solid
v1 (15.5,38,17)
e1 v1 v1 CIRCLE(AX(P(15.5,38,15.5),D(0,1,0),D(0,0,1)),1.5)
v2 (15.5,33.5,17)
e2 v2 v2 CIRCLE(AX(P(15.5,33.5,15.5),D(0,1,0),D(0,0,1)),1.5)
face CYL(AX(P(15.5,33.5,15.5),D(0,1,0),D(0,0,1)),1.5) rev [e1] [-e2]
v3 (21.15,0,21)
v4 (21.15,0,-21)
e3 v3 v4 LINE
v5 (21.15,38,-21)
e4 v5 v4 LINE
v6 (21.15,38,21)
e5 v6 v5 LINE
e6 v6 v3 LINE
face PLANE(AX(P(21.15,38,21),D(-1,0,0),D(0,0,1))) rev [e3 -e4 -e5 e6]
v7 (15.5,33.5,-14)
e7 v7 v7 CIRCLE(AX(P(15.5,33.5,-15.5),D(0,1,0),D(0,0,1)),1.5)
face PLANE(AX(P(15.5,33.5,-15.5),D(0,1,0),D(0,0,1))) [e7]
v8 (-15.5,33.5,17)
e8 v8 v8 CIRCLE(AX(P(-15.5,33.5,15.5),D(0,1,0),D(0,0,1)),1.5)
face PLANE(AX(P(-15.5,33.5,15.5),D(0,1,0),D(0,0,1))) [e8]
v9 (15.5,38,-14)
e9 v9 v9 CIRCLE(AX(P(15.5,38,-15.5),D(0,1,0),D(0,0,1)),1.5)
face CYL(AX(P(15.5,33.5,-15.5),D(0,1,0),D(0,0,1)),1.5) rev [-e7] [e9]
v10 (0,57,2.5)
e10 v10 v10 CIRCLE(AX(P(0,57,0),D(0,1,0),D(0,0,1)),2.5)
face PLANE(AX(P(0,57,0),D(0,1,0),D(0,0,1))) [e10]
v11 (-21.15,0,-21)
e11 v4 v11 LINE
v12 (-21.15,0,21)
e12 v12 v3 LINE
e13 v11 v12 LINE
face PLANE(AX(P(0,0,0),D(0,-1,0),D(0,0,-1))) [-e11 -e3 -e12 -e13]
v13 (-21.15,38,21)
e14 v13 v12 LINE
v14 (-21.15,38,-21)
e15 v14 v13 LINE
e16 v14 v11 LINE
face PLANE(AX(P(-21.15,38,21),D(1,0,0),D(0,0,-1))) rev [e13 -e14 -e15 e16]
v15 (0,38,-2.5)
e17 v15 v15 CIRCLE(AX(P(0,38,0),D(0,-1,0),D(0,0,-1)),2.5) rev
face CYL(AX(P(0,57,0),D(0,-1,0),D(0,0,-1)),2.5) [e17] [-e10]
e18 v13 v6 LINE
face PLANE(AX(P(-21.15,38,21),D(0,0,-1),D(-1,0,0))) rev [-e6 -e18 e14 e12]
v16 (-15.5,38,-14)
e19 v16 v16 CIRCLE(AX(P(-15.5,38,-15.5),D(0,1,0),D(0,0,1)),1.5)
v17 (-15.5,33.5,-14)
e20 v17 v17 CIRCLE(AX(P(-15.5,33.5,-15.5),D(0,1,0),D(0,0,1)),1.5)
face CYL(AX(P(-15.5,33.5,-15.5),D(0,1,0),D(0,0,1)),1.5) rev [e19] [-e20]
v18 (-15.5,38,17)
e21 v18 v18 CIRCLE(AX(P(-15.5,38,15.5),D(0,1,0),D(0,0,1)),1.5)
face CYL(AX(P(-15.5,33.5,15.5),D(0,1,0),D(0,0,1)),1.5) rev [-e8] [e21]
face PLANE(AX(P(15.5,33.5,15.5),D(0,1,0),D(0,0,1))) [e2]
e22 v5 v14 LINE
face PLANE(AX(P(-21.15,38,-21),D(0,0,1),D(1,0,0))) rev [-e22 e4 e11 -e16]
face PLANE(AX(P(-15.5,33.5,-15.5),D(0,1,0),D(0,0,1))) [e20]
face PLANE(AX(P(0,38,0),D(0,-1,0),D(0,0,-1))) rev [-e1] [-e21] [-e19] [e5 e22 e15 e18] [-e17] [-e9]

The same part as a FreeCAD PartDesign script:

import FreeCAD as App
import Part
import Sketcher

V = App.Vector
Q = App.Units.Quantity

doc = App.newDocument("Part")
body = doc.addObject("PartDesign::Body", "Body")

sketch1 = doc.addObject("Sketcher::SketchObject", "Sketch")
body.addObject(sketch1)
sketch1.AttachmentSupport = (doc.XZ_Plane, [""])
sketch1.MapMode = "FlatFace"
sketch1.addGeometry(Part.LineSegment(V(-21.15, -21, 0), V(-21.15, 21, 0)), False)
sketch1.addGeometry(Part.LineSegment(V(-21.15, 21, 0), V(21.15, 21, 0)), False)
sketch1.addGeometry(Part.LineSegment(V(21.15, 21, 0), V(21.15, -21, 0)), False)
sketch1.addGeometry(Part.LineSegment(V(21.15, -21, 0), V(-21.15, -21, 0)), False)
sketch1.addConstraint(Sketcher.Constraint("Coincident", 0, 2, 1, 1))
sketch1.addConstraint(Sketcher.Constraint("Coincident", 1, 2, 2, 1))
sketch1.addConstraint(Sketcher.Constraint("Coincident", 2, 2, 3, 1))
sketch1.addConstraint(Sketcher.Constraint("Coincident", 3, 2, 0, 1))
sketch1.addConstraint(Sketcher.Constraint("Vertical", 0))
sketch1.addConstraint(Sketcher.Constraint("Horizontal", 1))
sketch1.addConstraint(Sketcher.Constraint("Vertical", 2))
sketch1.addConstraint(Sketcher.Constraint("Horizontal", 3))
sketch1.addConstraint(Sketcher.Constraint("Symmetric", 0, 2, 2, 2, -1, 1))
sketch1.addConstraint(Sketcher.Constraint("DistanceY", 0, 1, 0, 2, Q("42 mm")))
sketch1.addConstraint(Sketcher.Constraint("DistanceX", 1, 1, 1, 2, Q("42.3 mm")))
pad1 = doc.addObject("PartDesign::Pad", "Pad")
body.addObject(pad1)
pad1.Profile = sketch1
pad1.Length = 38
pad1.Reversed = True

sketch2 = doc.addObject("Sketcher::SketchObject", "Sketch001")
body.addObject(sketch2)
sketch2.AttachmentSupport = (doc.XZ_Plane, [""])
sketch2.MapMode = "FlatFace"
sketch2.AttachmentOffset = App.Placement(V(0, 0, -38), App.Rotation())
sketch2.addGeometry(Part.Circle(V(0, 0, 0), V(0, 0, 1), 2.5), False)
sketch2.addConstraint(Sketcher.Constraint("Coincident", 0, 3, -1, 1))
sketch2.addConstraint(Sketcher.Constraint("Diameter", 0, Q("5 mm")))
pad2 = doc.addObject("PartDesign::Pad", "Pad001")
body.addObject(pad2)
pad2.Profile = sketch2
pad2.Length = 19
pad2.Reversed = True

sketch3 = doc.addObject("Sketcher::SketchObject", "Sketch002")
body.addObject(sketch3)
sketch3.AttachmentSupport = (doc.XZ_Plane, [""])
sketch3.MapMode = "FlatFace"
sketch3.AttachmentOffset = App.Placement(V(0, 0, -38), App.Rotation())
sketch3.addGeometry(Part.Circle(V(-15.5, -15.5, 0), V(0, 0, 1), 1.5), False)
sketch3.addGeometry(Part.Circle(V(15.5, -15.5, 0), V(0, 0, 1), 1.5), False)
sketch3.addGeometry(Part.Circle(V(15.5, 15.5, 0), V(0, 0, 1), 1.5), False)
sketch3.addGeometry(Part.Circle(V(-15.5, 15.5, 0), V(0, 0, 1), 1.5), False)
sketch3.addConstraint(Sketcher.Constraint("Equal", 0, 1))
sketch3.addConstraint(Sketcher.Constraint("Equal", 1, 2))
sketch3.addConstraint(Sketcher.Constraint("Equal", 2, 3))
sketch3.addConstraint(Sketcher.Constraint("Symmetric", 0, 3, 2, 3, -1, 1))
sketch3.addConstraint(Sketcher.Constraint("Symmetric", 1, 3, 3, 3, -1, 1))
sketch3.addConstraint(Sketcher.Constraint("Symmetric", 0, 3, 1, 3, -2))
sketch3.addConstraint(Sketcher.Constraint("Diameter", 0, Q("3 mm")))
sketch3.addConstraint(Sketcher.Constraint("DistanceX", 0, 3, 1, 3, Q("31 mm")))
sketch3.addConstraint(Sketcher.Constraint("DistanceY", 1, 3, 2, 3, Q("31 mm")))
pocket1 = doc.addObject("PartDesign::Pocket", "Pocket")
body.addObject(pocket1)
pocket1.Profile = sketch3
pocket1.Length = 4.5
pocket1.Reversed = True

doc.recompute()
